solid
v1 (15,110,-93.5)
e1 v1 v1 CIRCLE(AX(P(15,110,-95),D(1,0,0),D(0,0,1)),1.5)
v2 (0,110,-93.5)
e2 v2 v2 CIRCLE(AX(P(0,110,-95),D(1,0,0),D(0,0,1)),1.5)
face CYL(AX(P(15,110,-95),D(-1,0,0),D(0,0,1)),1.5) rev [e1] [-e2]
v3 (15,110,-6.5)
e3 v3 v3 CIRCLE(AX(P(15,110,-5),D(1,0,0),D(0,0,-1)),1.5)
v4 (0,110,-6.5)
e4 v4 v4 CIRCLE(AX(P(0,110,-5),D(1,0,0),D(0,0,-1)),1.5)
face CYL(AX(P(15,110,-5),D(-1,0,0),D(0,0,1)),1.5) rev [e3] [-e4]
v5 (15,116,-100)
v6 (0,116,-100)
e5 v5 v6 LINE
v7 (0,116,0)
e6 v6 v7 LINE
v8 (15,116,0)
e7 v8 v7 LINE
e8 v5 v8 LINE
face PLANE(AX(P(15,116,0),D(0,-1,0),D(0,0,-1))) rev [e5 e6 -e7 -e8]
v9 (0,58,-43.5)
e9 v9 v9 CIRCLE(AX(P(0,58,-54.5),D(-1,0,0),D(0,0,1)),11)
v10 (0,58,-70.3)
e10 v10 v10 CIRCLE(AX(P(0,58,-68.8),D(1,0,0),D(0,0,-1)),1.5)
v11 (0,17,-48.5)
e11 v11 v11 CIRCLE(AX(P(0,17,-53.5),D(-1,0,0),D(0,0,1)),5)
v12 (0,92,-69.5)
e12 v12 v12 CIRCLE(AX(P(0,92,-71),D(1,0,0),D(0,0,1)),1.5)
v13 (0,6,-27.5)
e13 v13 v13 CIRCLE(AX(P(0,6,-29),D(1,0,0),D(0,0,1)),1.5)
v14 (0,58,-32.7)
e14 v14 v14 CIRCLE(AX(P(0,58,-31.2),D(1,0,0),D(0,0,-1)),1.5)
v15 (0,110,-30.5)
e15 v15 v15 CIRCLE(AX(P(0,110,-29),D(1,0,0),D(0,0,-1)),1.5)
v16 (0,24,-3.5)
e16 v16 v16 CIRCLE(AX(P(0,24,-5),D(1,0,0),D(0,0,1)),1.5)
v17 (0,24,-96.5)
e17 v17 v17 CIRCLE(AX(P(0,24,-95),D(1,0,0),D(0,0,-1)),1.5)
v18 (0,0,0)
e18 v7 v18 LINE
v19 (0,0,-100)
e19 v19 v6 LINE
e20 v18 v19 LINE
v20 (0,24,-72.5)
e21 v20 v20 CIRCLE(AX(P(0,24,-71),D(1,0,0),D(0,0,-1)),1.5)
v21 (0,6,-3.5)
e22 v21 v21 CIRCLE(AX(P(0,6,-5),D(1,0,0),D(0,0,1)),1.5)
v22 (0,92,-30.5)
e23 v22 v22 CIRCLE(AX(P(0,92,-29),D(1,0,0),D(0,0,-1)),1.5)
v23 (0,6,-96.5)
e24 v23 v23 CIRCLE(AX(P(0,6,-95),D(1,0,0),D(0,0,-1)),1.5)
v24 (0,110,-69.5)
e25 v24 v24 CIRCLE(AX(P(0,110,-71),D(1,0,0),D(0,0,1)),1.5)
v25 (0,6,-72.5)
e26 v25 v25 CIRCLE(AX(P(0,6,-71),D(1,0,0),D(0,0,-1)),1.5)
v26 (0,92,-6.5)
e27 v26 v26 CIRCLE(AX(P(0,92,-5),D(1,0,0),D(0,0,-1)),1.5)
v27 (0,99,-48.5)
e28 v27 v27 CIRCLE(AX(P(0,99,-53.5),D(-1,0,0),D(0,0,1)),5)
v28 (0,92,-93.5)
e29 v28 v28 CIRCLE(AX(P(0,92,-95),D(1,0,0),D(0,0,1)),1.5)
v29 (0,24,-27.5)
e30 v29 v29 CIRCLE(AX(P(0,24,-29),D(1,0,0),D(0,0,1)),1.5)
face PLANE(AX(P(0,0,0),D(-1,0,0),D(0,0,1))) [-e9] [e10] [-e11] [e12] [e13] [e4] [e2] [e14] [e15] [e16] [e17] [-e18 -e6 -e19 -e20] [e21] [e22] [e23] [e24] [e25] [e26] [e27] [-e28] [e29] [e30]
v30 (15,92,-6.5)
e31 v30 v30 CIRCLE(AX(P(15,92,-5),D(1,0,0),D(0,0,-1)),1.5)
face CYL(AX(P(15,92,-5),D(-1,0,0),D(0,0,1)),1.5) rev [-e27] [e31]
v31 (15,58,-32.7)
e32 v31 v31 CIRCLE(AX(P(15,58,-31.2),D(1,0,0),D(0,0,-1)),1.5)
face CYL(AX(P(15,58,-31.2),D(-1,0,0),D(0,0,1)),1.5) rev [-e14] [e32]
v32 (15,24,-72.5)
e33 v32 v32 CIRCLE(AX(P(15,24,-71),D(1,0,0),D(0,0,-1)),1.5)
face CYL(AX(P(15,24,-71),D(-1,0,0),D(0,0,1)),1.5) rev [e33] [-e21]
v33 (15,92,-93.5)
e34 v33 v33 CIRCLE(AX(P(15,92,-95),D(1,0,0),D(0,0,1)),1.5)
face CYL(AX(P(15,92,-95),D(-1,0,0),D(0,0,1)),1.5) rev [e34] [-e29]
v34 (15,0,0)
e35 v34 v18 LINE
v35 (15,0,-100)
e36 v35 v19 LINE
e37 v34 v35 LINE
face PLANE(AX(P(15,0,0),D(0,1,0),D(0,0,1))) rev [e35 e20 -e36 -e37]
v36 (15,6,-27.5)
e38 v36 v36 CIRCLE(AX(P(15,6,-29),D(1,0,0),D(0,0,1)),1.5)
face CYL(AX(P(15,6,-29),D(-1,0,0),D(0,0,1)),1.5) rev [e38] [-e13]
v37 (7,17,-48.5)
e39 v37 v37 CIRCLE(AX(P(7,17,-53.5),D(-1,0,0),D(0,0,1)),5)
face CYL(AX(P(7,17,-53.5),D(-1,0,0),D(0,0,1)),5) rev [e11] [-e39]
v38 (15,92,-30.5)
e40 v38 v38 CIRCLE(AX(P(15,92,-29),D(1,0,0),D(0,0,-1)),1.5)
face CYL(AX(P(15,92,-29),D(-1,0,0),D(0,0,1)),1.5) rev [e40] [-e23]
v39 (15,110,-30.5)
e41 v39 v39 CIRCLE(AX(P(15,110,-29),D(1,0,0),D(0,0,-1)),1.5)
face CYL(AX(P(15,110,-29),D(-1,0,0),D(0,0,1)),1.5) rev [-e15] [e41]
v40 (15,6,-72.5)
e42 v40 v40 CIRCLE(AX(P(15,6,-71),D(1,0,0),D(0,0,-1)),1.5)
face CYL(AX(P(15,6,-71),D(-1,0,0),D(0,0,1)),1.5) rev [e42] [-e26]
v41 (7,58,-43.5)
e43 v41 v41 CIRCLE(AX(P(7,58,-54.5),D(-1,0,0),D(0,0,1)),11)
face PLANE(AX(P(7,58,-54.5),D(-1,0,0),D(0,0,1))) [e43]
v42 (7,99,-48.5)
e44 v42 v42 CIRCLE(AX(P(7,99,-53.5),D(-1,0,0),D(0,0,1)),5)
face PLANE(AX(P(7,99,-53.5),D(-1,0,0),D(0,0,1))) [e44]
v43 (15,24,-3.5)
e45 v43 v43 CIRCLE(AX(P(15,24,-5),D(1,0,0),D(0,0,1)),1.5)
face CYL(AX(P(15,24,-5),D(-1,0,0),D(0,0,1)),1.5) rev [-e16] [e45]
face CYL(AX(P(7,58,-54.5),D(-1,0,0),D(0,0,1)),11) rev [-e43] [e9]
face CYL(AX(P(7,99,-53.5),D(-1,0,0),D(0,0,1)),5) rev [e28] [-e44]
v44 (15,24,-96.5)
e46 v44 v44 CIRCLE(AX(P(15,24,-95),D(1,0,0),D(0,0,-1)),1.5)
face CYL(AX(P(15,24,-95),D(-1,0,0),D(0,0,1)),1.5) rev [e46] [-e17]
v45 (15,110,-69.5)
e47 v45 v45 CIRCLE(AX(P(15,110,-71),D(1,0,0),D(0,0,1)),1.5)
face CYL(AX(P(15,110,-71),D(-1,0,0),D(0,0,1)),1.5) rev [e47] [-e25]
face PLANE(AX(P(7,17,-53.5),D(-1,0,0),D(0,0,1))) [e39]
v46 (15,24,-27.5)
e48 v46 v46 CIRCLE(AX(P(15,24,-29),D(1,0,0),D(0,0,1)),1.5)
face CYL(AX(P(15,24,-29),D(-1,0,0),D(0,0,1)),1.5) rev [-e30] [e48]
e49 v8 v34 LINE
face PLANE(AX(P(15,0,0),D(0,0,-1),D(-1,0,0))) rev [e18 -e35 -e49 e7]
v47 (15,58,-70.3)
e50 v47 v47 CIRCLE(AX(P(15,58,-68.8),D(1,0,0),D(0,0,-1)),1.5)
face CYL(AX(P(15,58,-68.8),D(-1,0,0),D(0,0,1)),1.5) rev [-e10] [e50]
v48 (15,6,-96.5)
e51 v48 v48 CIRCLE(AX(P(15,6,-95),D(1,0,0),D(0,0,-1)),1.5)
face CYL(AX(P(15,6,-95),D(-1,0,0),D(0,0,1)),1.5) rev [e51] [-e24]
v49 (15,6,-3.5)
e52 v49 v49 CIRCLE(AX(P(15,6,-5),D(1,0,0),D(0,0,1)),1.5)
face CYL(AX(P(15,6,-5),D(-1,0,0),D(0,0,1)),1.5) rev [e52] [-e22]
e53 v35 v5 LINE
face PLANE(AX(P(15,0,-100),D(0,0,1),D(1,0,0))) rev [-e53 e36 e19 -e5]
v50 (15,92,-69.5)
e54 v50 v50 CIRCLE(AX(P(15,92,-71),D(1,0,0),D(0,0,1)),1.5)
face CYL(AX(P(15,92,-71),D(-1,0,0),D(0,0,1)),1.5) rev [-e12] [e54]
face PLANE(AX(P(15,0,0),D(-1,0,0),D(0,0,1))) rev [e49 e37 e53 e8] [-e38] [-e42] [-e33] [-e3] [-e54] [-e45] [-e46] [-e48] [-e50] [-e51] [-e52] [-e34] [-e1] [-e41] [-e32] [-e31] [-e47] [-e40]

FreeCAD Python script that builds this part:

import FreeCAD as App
import Part
import Sketcher
from FreeCAD import Vector


def add_polygon(sketch, points):
    """Adds a closed chain of lines whose ends are joined by coincident constraints."""
    first, n = sketch.GeometryCount, len(points)
    for a, b in zip(points, points[1:] + points[:1]):
        sketch.addGeometry(Part.LineSegment(App.Vector(*a, 0), App.Vector(*b, 0)), False)
    for i in range(n):
        sketch.addConstraint(Sketcher.Constraint("Coincident", first + i, 2, first + (i + 1) % n, 1))

doc = App.newDocument("Part")
params = doc.addObject("Spreadsheet::Sheet", "Params")
for row, (alias, value) in enumerate([
    ("sketch1_diameter", "3 mm"),
    ("sketch1_width", "116 mm"),
    ("sketch1_height", "100 mm"),
    ("pad1_length", "15 mm"),
    ("sketch2_diameter", "10 mm"),
    ("sketch2_diameter2", "22 mm"),
    ("pocket1_length", "7 mm"),
], start=1):
    params.set(f"A{row}", alias)
    params.set(f"B{row}", "=" + value)
    params.setAlias(f"B{row}", alias)

body = doc.addObject("PartDesign::Body", "Body")

sketch1 = doc.addObject("Sketcher::SketchObject", "Sketch")
body.addObject(sketch1)
sketch1.AttachmentSupport = (doc.YZ_Plane, [""])
sketch1.MapMode = "FlatFace"
add_polygon(sketch1, [(116, 0), (0, 0), (0, -100), (116, -100)])
sketch1.addGeometry(Part.Circle(Vector(6, -5, 0), Vector(0, 0, 1), 1.5), False)
sketch1.addGeometry(Part.Circle(Vector(24, -5, 0), Vector(0, 0, 1), 1.5), False)
sketch1.addGeometry(Part.Circle(Vector(6, -29, 0), Vector(0, 0, 1), 1.5), False)
sketch1.addGeometry(Part.Circle(Vector(24, -29, 0), Vector(0, 0, 1), 1.5), False)
sketch1.addGeometry(Part.Circle(Vector(58, -31.2, 0), Vector(0, 0, 1), 1.5), False)
sketch1.addGeometry(Part.Circle(Vector(6, -71, 0), Vector(0, 0, 1), 1.5), False)
sketch1.addGeometry(Part.Circle(Vector(24, -71, 0), Vector(0, 0, 1), 1.5), False)
sketch1.addGeometry(Part.Circle(Vector(6, -95, 0), Vector(0, 0, 1), 1.5), False)
sketch1.addGeometry(Part.Circle(Vector(24, -95, 0), Vector(0, 0, 1), 1.5), False)
sketch1.addGeometry(Part.Circle(Vector(58, -68.8, 0), Vector(0, 0, 1), 1.5), False)
sketch1.addGeometry(Part.Circle(Vector(92, -5, 0), Vector(0, 0, 1), 1.5), False)
sketch1.addGeometry(Part.Circle(Vector(110, -5, 0), Vector(0, 0, 1), 1.5), False)
sketch1.addGeometry(Part.Circle(Vector(92, -29, 0), Vector(0, 0, 1), 1.5), False)
sketch1.addGeometry(Part.Circle(Vector(110, -29, 0), Vector(0, 0, 1), 1.5), False)
sketch1.addGeometry(Part.Circle(Vector(92, -71, 0), Vector(0, 0, 1), 1.5), False)
sketch1.addGeometry(Part.Circle(Vector(110, -71, 0), Vector(0, 0, 1), 1.5), False)
sketch1.addGeometry(Part.Circle(Vector(92, -95, 0), Vector(0, 0, 1), 1.5), False)
sketch1.addGeometry(Part.Circle(Vector(110, -95, 0), Vector(0, 0, 1), 1.5), False)
sketch1.addConstraint(Sketcher.Constraint("Horizontal", 0))
sketch1.addConstraint(Sketcher.Constraint("Vertical", 1))
sketch1.addConstraint(Sketcher.Constraint("Horizontal", 2))
sketch1.addConstraint(Sketcher.Constraint("Vertical", 3))
sketch1.addConstraint(Sketcher.Constraint("Coincident", 0, 2, -1, 1))
sketch1.addConstraint(Sketcher.Constraint("Equal", 4, 5))
sketch1.addConstraint(Sketcher.Constraint("Equal", 5, 6))
sketch1.addConstraint(Sketcher.Constraint("Equal", 6, 7))
sketch1.addConstraint(Sketcher.Constraint("Equal", 7, 8))
sketch1.addConstraint(Sketcher.Constraint("Equal", 8, 9))
sketch1.addConstraint(Sketcher.Constraint("Equal", 9, 10))
sketch1.addConstraint(Sketcher.Constraint("Equal", 10, 11))
sketch1.addConstraint(Sketcher.Constraint("Equal", 11, 12))
sketch1.addConstraint(Sketcher.Constraint("Equal", 12, 13))
sketch1.addConstraint(Sketcher.Constraint("Equal", 13, 14))
sketch1.addConstraint(Sketcher.Constraint("Equal", 14, 15))
sketch1.addConstraint(Sketcher.Constraint("Equal", 15, 16))
sketch1.addConstraint(Sketcher.Constraint("Equal", 16, 17))
sketch1.addConstraint(Sketcher.Constraint("Equal", 17, 18))
sketch1.addConstraint(Sketcher.Constraint("Equal", 18, 19))
sketch1.addConstraint(Sketcher.Constraint("Equal", 19, 20))
sketch1.addConstraint(Sketcher.Constraint("Equal", 20, 21))
sketch1.addConstraint(Sketcher.Constraint("Horizontal", 4, 3, 5, 3))
sketch1.addConstraint(Sketcher.Constraint("Horizontal", 6, 3, 7, 3))
sketch1.addConstraint(Sketcher.Constraint("Horizontal", 9, 3, 10, 3))
sketch1.addConstraint(Sketcher.Constraint("Horizontal", 11, 3, 12, 3))
sketch1.addConstraint(Sketcher.Constraint("Horizontal", 5, 3, 14, 3))
sketch1.addConstraint(Sketcher.Constraint("Horizontal", 14, 3, 15, 3))
sketch1.addConstraint(Sketcher.Constraint("Horizontal", 7, 3, 16, 3))
sketch1.addConstraint(Sketcher.Constraint("Horizontal", 16, 3, 17, 3))
sketch1.addConstraint(Sketcher.Constraint("Horizontal", 10, 3, 18, 3))
sketch1.addConstraint(Sketcher.Constraint("Horizontal", 18, 3, 19, 3))
sketch1.addConstraint(Sketcher.Constraint("Horizontal", 12, 3, 20, 3))
sketch1.addConstraint(Sketcher.Constraint("Horizontal", 20, 3, 21, 3))
sketch1.addConstraint(Sketcher.Constraint("Vertical", 4, 3, 6, 3))
sketch1.addConstraint(Sketcher.Constraint("Vertical", 5, 3, 7, 3))
sketch1.addConstraint(Sketcher.Constraint("Vertical", 6, 3, 9, 3))
sketch1.addConstraint(Sketcher.Constraint("Vertical", 7, 3, 10, 3))
sketch1.addConstraint(Sketcher.Constraint("Vertical", 9, 3, 11, 3))
sketch1.addConstraint(Sketcher.Constraint("Vertical", 10, 3, 12, 3))
sketch1.addConstraint(Sketcher.Constraint("Vertical", 8, 3, 13, 3))
sketch1.addConstraint(Sketcher.Constraint("Vertical", 14, 3, 16, 3))
sketch1.addConstraint(Sketcher.Constraint("Vertical", 15, 3, 17, 3))
sketch1.addConstraint(Sketcher.Constraint("Vertical", 16, 3, 18, 3))
sketch1.addConstraint(Sketcher.Constraint("Vertical", 17, 3, 19, 3))
sketch1.addConstraint(Sketcher.Constraint("Vertical", 18, 3, 20, 3))
sketch1.addConstraint(Sketcher.Constraint("Vertical", 19, 3, 21, 3))
sketch1.addConstraint(Sketcher.Constraint("Diameter", 4, 3.0))
sketch1.addConstraint(Sketcher.Constraint("DistanceX", 0, 2, 0, 1, 116.0))
sketch1.addConstraint(Sketcher.Constraint("DistanceY", 1, 2, 1, 1, 100.0))
sketch1.addConstraint(Sketcher.Constraint("DistanceX", -1, 1, 4, 3, 6.0))
sketch1.addConstraint(Sketcher.Constraint("DistanceY", 4, 3, -1, 1, 5.0))
sketch1.addConstraint(Sketcher.Constraint("DistanceX", -1, 1, 5, 3, 24.0))
sketch1.addConstraint(Sketcher.Constraint("DistanceY", 6, 3, -1, 1, 29.0))
sketch1.addConstraint(Sketcher.Constraint("DistanceX", -1, 1, 8, 3, 58.0))
sketch1.addConstraint(Sketcher.Constraint("DistanceY", 9, 3, -1, 1, 71.0))
sketch1.addConstraint(Sketcher.Constraint("DistanceY", 11, 3, -1, 1, 95.0))
sketch1.addConstraint(Sketcher.Constraint("DistanceX", -1, 1, 14, 3, 92.0))
sketch1.addConstraint(Sketcher.Constraint("DistanceX", -1, 1, 15, 3, 110.0))
sketch1.addConstraint(Sketcher.Constraint("DistanceY", 8, 3, -1, 1, 31.2))
sketch1.addConstraint(Sketcher.Constraint("DistanceY", 13, 3, -1, 1, 68.8))
sketch1.setExpression("Constraints[51]", "Params.sketch1_diameter")
sketch1.setExpression("Constraints[52]", "Params.sketch1_width")
sketch1.setExpression("Constraints[53]", "Params.sketch1_height")
pad1 = doc.addObject("PartDesign::Pad", "Pad")
body.addObject(pad1)
pad1.Profile = sketch1
pad1.setExpression("Length", "Params.pad1_length")

sketch2 = doc.addObject("Sketcher::SketchObject", "Sketch001")
body.addObject(sketch2)
sketch2.AttachmentSupport = (doc.YZ_Plane, [""])
sketch2.MapMode = "FlatFace"
sketch2.addGeometry(Part.Circle(Vector(99, -53.5, 0), Vector(0, 0, 1), 5), False)
sketch2.addGeometry(Part.Circle(Vector(17, -53.5, 0), Vector(0, 0, 1), 5), False)
sketch2.addGeometry(Part.Circle(Vector(58, -54.5, 0), Vector(0, 0, 1), 11), False)
sketch2.addConstraint(Sketcher.Constraint("Equal", 0, 1))
sketch2.addConstraint(Sketcher.Constraint("Horizontal", 0, 3, 1, 3))
sketch2.addConstraint(Sketcher.Constraint("Diameter", 0, 10.0))
sketch2.addConstraint(Sketcher.Constraint("Diameter", 2, 22.0))
sketch2.addConstraint(Sketcher.Constraint("DistanceX", -1, 1, 0, 3, 99.0))
sketch2.addConstraint(Sketcher.Constraint("DistanceX", -1, 1, 1, 3, 17.0))
sketch2.addConstraint(Sketcher.Constraint("DistanceX", -1, 1, 2, 3, 58.0))
sketch2.addConstraint(Sketcher.Constraint("DistanceY", 2, 3, 0, 3, 1.0))
sketch2.addConstraint(Sketcher.Constraint("DistanceY", 0, 3, -1, 1, 53.5))
sketch2.setExpression("Constraints[2]", "Params.sketch2_diameter")
sketch2.setExpression("Constraints[3]", "Params.sketch2_diameter2")
pocket1 = doc.addObject("PartDesign::Pocket", "Pocket")
body.addObject(pocket1)
pocket1.Profile = sketch2
pocket1.setExpression("Length", "Params.pocket1_length")
pocket1.Reversed = True

doc.recompute()
